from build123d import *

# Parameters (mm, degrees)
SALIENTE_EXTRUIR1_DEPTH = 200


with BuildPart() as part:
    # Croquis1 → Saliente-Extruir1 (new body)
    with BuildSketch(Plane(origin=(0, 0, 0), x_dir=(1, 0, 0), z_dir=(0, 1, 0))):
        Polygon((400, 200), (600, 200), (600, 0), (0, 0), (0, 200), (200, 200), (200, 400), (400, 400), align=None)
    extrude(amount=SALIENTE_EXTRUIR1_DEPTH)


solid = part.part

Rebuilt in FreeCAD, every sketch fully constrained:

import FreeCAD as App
import Part
import Sketcher

V = App.Vector
Q = App.Units.Quantity


def add_polygon(sketch, points):
    """Adds a closed chain of lines whose ends are joined by coincident constraints."""
    first, n = sketch.GeometryCount, len(points)
    for a, b in zip(points, points[1:] + points[:1]):
        sketch.addGeometry(Part.LineSegment(App.Vector(*a, 0), App.Vector(*b, 0)), False)
    for i in range(n):
        sketch.addConstraint(Sketcher.Constraint("Coincident", first + i, 2, first + (i + 1) % n, 1))

doc = App.newDocument("Part")
body = doc.addObject("PartDesign::Body", "Body")

sketch1 = body.newObject("Sketcher::SketchObject", "Sketch")
sketch1.AttachmentSupport = (doc.getObject("XZ_Plane"), [""])
sketch1.MapMode = "FlatFace"
add_polygon(sketch1, [(600, -200), (400, -200), (400, -400), (200, -400), (200, -200), (0, -200), (0, 0), (600, 0)])
sketch1.addConstraint([
    Sketcher.Constraint("Horizontal", 0),
    Sketcher.Constraint("Vertical", 1),
    Sketcher.Constraint("Horizontal", 2),
    Sketcher.Constraint("Vertical", 3),
    Sketcher.Constraint("Horizontal", 4),
    Sketcher.Constraint("Vertical", 5),
    Sketcher.Constraint("Horizontal", 6),
    Sketcher.Constraint("Vertical", 7),
    Sketcher.Constraint("Coincident", 5, 2, -1, 1),
    Sketcher.Constraint("Horizontal", 0, 2, 3, 2),
    Sketcher.Constraint("Equal", 0, 2),
    Sketcher.Constraint("Equal", 2, 4),
    Sketcher.Constraint("Equal", 4, 1),
    Sketcher.Constraint("Equal", 3, 5),
    Sketcher.Constraint("DistanceX", 0, 2, 0, 1, Q("200 mm")),
])
pad1 = body.newObject("PartDesign::Pad", "Pad")
pad1.Profile = sketch1
pad1.Length = 200
pad1.Reversed = True

doc.recompute()
